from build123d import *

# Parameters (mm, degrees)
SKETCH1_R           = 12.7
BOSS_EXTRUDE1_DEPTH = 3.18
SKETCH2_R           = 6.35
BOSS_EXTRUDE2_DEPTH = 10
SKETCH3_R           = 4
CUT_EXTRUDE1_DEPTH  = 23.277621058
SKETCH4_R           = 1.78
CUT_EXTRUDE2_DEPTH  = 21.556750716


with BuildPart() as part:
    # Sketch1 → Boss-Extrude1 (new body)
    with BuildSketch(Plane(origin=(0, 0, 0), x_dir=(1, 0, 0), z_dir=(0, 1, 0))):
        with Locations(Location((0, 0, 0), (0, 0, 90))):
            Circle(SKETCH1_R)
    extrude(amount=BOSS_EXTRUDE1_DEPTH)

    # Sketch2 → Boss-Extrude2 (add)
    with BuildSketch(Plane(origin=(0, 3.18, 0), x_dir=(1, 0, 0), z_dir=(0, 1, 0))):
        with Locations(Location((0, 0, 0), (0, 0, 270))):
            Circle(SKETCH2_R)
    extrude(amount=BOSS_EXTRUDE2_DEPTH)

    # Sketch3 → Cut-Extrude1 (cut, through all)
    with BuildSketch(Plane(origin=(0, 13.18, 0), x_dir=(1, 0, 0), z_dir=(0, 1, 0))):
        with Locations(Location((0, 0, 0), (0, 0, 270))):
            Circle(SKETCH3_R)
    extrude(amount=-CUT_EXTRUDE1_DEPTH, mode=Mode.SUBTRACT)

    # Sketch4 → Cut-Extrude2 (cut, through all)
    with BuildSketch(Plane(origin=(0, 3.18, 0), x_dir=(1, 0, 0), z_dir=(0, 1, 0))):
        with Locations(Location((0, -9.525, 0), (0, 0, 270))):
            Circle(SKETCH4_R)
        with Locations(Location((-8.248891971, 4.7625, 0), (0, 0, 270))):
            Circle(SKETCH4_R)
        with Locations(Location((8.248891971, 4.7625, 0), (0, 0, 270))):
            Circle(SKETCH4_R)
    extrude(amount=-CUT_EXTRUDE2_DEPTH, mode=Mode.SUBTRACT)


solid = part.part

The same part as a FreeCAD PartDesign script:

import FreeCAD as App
import Part
import Sketcher

V = App.Vector

doc = App.newDocument("Part")
body = doc.addObject("PartDesign::Body", "Body")

# Sketch on XZ plane
sketch1 = doc.addObject("Sketcher::SketchObject", "Sketch")
body.addObject(sketch1)
sketch1.AttachmentSupport = (doc.XZ_Plane, [""])
sketch1.MapMode = "FlatFace"
sketch1.addGeometry(Part.Circle(V(0, 0, 0), V(0, 0, 1), 12.7), False)
sketch1.addConstraint([
    Sketcher.Constraint("Coincident", 0, 3, -1, 1),
    Sketcher.Constraint("Diameter", 0, 25.4),
])
pad1 = doc.addObject("PartDesign::Pad", "Pad")
body.addObject(pad1)
pad1.Profile = sketch1
pad1.Length = 3.18
pad1.Reversed = True

# Sketch on XZ plane
sketch2 = doc.addObject("Sketcher::SketchObject", "Sketch001")
body.addObject(sketch2)
sketch2.AttachmentSupport = (doc.XZ_Plane, [""])
sketch2.MapMode = "FlatFace"
sketch2.AttachmentOffset = App.Placement(V(0, 0, -3.18), App.Rotation())
sketch2.addGeometry(Part.Circle(V(0, 0, 0), V(0, 0, 1), 6.35), False)
sketch2.addConstraint([
    Sketcher.Constraint("Coincident", 0, 3, -1, 1),
    Sketcher.Constraint("Diameter", 0, 12.7),
])
pad2 = doc.addObject("PartDesign::Pad", "Pad001")
body.addObject(pad2)
pad2.Profile = sketch2
pad2.Length = 10
pad2.Reversed = True

# Sketch on XZ plane
sketch3 = doc.addObject("Sketcher::SketchObject", "Sketch002")
body.addObject(sketch3)
sketch3.AttachmentSupport = (doc.XZ_Plane, [""])
sketch3.MapMode = "FlatFace"
sketch3.AttachmentOffset = App.Placement(V(0, 0, -13.18), App.Rotation())
sketch3.addGeometry(Part.Circle(V(0, 0, 0), V(0, 0, 1), 4), False)
sketch3.addConstraint([
    Sketcher.Constraint("Coincident", 0, 3, -1, 1),
    Sketcher.Constraint("Diameter", 0, 8.0),
])
pocket1 = doc.addObject("PartDesign::Pocket", "Pocket")
body.addObject(pocket1)
pocket1.Profile = sketch3
pocket1.Type = "ThroughAll"
pocket1.Reversed = True

# Sketch on XZ plane
sketch4 = doc.addObject("Sketcher::SketchObject", "Sketch003")
body.addObject(sketch4)
sketch4.AttachmentSupport = (doc.XZ_Plane, [""])
sketch4.MapMode = "FlatFace"
sketch4.AttachmentOffset = App.Placement(V(0, 0, -3.18), App.Rotation())
sketch4.addGeometry([
    Part.Circle(V(0, 9.525, 0), V(0, 0, 1), 1.78),
    Part.Circle(V(-8.248892, -4.7625, 0), V(0, 0, 1), 1.78),
    Part.Circle(V(8.248892, -4.7625, 0), V(0, 0, 1), 1.78),
], False)
sketch4.addConstraint([
    Sketcher.Constraint("Equal", 0, 1),
    Sketcher.Constraint("Equal", 1, 2),
    Sketcher.Constraint("Symmetric", 1, 3, 2, 3, -2),
    Sketcher.Constraint("PointOnObject", 0, 3, -2),
    Sketcher.Constraint("Diameter", 0, 3.56),
    Sketcher.Constraint("DistanceY", -1, 1, 0, 3, 9.525),
    Sketcher.Constraint("DistanceY", 1, 3, -1, 1, 4.7625),
    Sketcher.Constraint("DistanceX", 1, 3, -1, 1, 8.248892),
])
pocket2 = doc.addObject("PartDesign::Pocket", "Pocket001")
body.addObject(pocket2)
pocket2.Profile = sketch4
pocket2.Type = "ThroughAll"
pocket2.Reversed = True

doc.recompute()
